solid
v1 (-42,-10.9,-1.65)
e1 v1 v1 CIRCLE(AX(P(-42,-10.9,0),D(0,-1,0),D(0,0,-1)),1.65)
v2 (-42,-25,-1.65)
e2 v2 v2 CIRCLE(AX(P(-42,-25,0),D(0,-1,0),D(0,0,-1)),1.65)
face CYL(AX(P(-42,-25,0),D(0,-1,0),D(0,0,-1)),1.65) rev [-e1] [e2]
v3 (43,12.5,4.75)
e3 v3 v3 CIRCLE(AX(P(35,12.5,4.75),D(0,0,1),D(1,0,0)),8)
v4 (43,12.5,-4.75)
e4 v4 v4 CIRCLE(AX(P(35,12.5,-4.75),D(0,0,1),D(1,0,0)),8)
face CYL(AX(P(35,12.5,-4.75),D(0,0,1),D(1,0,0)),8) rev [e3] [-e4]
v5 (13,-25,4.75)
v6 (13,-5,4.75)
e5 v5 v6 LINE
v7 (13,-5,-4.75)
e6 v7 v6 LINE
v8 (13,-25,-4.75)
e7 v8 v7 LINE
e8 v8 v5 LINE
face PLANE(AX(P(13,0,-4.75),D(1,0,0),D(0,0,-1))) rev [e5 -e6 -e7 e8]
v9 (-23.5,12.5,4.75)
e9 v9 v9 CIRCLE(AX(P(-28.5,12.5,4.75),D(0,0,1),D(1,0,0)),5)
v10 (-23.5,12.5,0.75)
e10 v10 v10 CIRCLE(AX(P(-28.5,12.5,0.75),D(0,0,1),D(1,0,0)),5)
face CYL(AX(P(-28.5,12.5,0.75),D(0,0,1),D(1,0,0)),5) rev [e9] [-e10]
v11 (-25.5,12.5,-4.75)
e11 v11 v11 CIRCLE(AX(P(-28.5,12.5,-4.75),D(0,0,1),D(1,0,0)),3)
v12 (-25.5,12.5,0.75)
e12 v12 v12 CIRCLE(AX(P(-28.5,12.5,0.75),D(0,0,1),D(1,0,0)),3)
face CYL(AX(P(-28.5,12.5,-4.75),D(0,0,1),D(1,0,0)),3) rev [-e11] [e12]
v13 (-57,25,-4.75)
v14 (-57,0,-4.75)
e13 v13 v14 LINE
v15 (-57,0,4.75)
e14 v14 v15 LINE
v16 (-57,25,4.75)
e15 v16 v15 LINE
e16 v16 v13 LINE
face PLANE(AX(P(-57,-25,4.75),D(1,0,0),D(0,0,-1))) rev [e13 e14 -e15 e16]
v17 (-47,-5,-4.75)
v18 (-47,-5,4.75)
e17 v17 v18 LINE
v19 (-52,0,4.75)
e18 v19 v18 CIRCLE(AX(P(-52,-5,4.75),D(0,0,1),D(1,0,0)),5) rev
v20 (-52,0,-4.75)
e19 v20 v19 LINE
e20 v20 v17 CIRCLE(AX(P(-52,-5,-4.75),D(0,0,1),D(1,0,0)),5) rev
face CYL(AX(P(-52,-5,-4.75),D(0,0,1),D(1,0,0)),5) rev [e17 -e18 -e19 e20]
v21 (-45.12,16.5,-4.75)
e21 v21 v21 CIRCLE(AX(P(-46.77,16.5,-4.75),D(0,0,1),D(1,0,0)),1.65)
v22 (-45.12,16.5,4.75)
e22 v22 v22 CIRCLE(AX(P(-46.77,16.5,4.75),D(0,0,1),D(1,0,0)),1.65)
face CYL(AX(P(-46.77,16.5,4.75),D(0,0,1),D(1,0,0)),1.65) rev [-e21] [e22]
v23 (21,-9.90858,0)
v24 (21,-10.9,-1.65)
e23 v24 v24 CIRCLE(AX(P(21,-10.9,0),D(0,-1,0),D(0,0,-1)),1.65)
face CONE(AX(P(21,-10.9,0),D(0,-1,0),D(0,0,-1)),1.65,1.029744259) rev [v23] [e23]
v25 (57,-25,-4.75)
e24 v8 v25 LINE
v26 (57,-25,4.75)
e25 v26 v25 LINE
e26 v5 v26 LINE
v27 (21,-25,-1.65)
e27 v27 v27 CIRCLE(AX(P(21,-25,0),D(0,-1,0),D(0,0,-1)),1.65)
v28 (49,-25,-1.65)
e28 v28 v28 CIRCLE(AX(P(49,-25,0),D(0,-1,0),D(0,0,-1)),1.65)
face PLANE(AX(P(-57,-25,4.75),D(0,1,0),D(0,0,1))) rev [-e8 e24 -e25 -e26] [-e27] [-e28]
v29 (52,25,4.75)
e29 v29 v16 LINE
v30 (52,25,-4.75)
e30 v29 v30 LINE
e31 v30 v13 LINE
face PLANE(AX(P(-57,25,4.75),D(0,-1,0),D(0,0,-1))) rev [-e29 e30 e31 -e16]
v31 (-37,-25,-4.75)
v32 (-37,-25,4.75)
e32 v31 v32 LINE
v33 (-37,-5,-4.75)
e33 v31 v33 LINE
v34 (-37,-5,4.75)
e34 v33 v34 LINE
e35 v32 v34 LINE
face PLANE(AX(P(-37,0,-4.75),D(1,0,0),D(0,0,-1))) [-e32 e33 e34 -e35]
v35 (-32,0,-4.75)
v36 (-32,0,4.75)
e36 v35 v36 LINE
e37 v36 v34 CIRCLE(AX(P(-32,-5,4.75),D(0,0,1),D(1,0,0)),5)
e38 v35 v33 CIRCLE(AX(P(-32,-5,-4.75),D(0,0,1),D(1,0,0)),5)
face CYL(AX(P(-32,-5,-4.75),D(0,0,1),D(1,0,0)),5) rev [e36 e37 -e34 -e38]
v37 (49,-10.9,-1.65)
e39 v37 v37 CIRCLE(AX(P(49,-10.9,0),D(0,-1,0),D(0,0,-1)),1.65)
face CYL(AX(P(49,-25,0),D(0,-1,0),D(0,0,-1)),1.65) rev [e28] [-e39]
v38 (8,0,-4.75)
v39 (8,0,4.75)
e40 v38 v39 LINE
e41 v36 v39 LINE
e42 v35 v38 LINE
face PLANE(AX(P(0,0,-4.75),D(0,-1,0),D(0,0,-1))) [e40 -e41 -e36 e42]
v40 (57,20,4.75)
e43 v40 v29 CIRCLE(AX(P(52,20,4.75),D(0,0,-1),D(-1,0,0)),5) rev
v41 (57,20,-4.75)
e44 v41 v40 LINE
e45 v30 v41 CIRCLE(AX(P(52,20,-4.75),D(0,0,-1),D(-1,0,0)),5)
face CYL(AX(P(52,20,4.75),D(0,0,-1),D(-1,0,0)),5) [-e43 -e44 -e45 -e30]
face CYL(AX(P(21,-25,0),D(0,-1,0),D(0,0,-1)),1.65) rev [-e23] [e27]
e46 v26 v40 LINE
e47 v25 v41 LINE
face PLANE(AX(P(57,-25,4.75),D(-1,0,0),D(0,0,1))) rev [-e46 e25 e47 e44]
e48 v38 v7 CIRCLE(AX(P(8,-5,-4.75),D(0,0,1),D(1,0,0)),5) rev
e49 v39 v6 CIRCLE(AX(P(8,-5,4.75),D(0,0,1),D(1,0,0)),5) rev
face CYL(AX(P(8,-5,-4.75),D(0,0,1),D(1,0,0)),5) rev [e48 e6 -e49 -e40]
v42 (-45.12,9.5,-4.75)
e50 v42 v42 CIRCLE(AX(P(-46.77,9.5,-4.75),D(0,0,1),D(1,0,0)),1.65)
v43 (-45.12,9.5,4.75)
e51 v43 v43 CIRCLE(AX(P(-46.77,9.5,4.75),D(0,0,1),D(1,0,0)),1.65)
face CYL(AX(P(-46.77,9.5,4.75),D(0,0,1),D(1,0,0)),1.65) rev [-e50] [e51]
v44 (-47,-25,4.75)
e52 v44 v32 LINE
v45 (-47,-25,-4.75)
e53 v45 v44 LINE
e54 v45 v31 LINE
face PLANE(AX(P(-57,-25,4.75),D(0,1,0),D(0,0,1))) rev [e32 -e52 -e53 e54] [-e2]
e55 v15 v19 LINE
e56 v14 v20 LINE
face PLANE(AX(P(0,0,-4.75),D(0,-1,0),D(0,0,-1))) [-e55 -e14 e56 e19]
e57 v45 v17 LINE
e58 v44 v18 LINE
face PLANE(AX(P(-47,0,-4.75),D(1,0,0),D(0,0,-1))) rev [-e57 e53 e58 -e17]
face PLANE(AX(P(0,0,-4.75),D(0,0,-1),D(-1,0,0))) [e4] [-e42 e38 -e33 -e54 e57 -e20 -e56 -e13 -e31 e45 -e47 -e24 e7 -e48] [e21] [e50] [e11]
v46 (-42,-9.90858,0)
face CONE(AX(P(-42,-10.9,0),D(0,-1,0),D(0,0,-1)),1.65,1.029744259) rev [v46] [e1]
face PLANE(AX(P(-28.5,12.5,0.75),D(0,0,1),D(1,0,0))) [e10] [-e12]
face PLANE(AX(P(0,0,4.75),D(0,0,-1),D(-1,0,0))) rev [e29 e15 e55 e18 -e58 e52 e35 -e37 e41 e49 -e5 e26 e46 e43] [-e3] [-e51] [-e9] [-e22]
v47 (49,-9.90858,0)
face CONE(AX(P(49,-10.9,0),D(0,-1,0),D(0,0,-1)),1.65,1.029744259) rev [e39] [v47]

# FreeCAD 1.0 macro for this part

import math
import FreeCAD as App
import Part
import Sketcher
from FreeCAD import Vector


def edges_at(feature, points):
    """Names of the edges that pass closest to the given points."""
    edges = feature.Shape.Edges
    near = lambda p: min(range(len(edges)), key=lambda i: edges[i].distToShape(Part.Vertex(*p))[0])
    return sorted({f"Edge{near(p) + 1}" for p in points})


def add_polygon(sketch, points):
    """Adds a closed chain of lines whose ends are joined by coincident constraints."""
    first, n = sketch.GeometryCount, len(points)
    for a, b in zip(points, points[1:] + points[:1]):
        sketch.addGeometry(Part.LineSegment(App.Vector(*a, 0), App.Vector(*b, 0)), False)
    for i in range(n):
        sketch.addConstraint(Sketcher.Constraint("Coincident", first + i, 2, first + (i + 1) % n, 1))

doc = App.newDocument("Part")
params = doc.addObject("Spreadsheet::Sheet", "Params")
for row, (alias, value) in enumerate([
    ("sketch1_width", "114 mm"),
    ("sketch1_height", "50 mm"),
    ("pad1_length", "9.5 mm"),
    ("sketch2_diameter", "16 mm"),
    ("sketch2_radius", "5 mm"),
    ("sketch2_width", "50 mm"),
    ("sketch2_width2", "10 mm"),
    ("sketch2_height", "20 mm"),
    ("fillet_radius", "5 mm"),
    ("sketch3_diameter", "10 mm"),
    ("pocket2_length", "4 mm"),
    ("sketch4_diameter", "6 mm"),
    ("sketch5_diameter", "3.3 mm"),
    ("hole_diameter", "3.3 mm"),
    ("sketch6_diameter", "3.3 mm"),
    ("hole2_diameter", "3.3 mm"),
    ("hole2_depth", "14.1 mm"),
], start=1):
    params.set(f"A{row}", alias)
    params.set(f"B{row}", "=" + value)
    params.setAlias(f"B{row}", alias)

body = doc.addObject("PartDesign::Body", "Body")

sketch1 = body.newObject("Sketcher::SketchObject", "Sketch")
sketch1.AttachmentSupport = (doc.getObject("XY_Plane"), [""])
sketch1.MapMode = "FlatFace"
add_polygon(sketch1, [(-57, 25), (-57, -25), (57, -25), (57, 25)])
sketch1.addConstraint([
    Sketcher.Constraint("Vertical", 0),
    Sketcher.Constraint("Horizontal", 1),
    Sketcher.Constraint("Vertical", 2),
    Sketcher.Constraint("Horizontal", 3),
    Sketcher.Constraint("Symmetric", 0, 2, 2, 2, -1, 1),
    Sketcher.Constraint("DistanceX", 1, 1, 1, 2, 114.0),
    Sketcher.Constraint("DistanceY", 0, 2, 0, 1, 50.0),
])
sketch1.setExpression("Constraints[9]", "Params.sketch1_width")
sketch1.setExpression("Constraints[10]", "Params.sketch1_height")
pad1 = body.newObject("PartDesign::Pad", "Pad")
pad1.Profile = sketch1
pad1.setExpression("Length", "Params.pad1_length")
pad1.Midplane = True

sketch2 = body.newObject("Sketcher::SketchObject", "Sketch001")
sketch2.AttachmentSupport = (doc.getObject("XY_Plane"), [""])
sketch2.MapMode = "FlatFace"
sketch2.AttachmentOffset = App.Placement(Vector(0, 0, 4.75), App.Rotation())
sketch2.addGeometry([
    Part.LineSegment(Vector(-37, -5, 0), Vector(-37, -25, 0)),
    Part.LineSegment(Vector(-37, -25, 0), Vector(13, -25, 0)),
    Part.LineSegment(Vector(13, -25, 0), Vector(13, -5, 0)),
    Part.ArcOfCircle(Part.Circle(Vector(8, -5, 0), Vector(0, 0, 1), 5), math.radians(0), math.radians(90)),
    Part.LineSegment(Vector(8, 0, 0), Vector(-32, 0, 0)),
    Part.ArcOfCircle(Part.Circle(Vector(-32, -5, 0), Vector(0, 0, 1), 5), math.radians(90), math.radians(180)),
    Part.LineSegment(Vector(-57, -25, 0), Vector(-47, -25, 0)),
    Part.LineSegment(Vector(-47, -25, 0), Vector(-47, -5, 0)),
    Part.ArcOfCircle(Part.Circle(Vector(-52, -5, 0), Vector(0, 0, 1), 5), math.radians(0), math.radians(90)),
    Part.LineSegment(Vector(-52, 0, 0), Vector(-57, 0, 0)),
    Part.LineSegment(Vector(-57, 0, 0), Vector(-57, -25, 0)),
    Part.Circle(Vector(35, 12, 0), Vector(0, 0, 1), 8),
], False)
sketch2.addConstraint([
    Sketcher.Constraint("Coincident", 0, 2, 1, 1),
    Sketcher.Constraint("Coincident", 1, 2, 2, 1),
    Sketcher.Constraint("Tangent", 2, 2, 3, 1),
    Sketcher.Constraint("Tangent", 3, 2, 4, 1),
    Sketcher.Constraint("Tangent", 4, 2, 5, 1),
    Sketcher.Constraint("Tangent", 5, 2, 0, 1),
    Sketcher.Constraint("Coincident", 6, 2, 7, 1),
    Sketcher.Constraint("Tangent", 7, 2, 8, 1),
    Sketcher.Constraint("Tangent", 8, 2, 9, 1),
    Sketcher.Constraint("Coincident", 9, 2, 10, 1),
    Sketcher.Constraint("Coincident", 10, 2, 6, 1),
    Sketcher.Constraint("Vertical", 0),
    Sketcher.Constraint("Horizontal", 1),
    Sketcher.Constraint("Vertical", 2),
    Sketcher.Constraint("Horizontal", 4),
    Sketcher.Constraint("Horizontal", 6),
    Sketcher.Constraint("Vertical", 7),
    Sketcher.Constraint("Horizontal", 9),
    Sketcher.Constraint("Vertical", 10),
    Sketcher.Constraint("Equal", 3, 5),
    Sketcher.Constraint("Equal", 5, 8),
    Sketcher.Constraint("PointOnObject", 3, 2, -1),
    Sketcher.Constraint("PointOnObject", 8, 2, -1),
    Sketcher.Constraint("Horizontal", 1, 2, 6, 2),
    Sketcher.Constraint("Diameter", 11, 16.0),
    Sketcher.Constraint("Radius", 3, 5.0),
    Sketcher.Constraint("DistanceX", 1, 1, 1, 2, 50.0),
    Sketcher.Constraint("DistanceX", 6, 1, 6, 2, 10.0),
    Sketcher.Constraint("DistanceY", 0, 2, 0, 1, 20.0),
    Sketcher.Constraint("DistanceX", -1, 1, 3, 3, 8.0),
    Sketcher.Constraint("DistanceX", 8, 3, -1, 1, 52.0),
    Sketcher.Constraint("DistanceX", -1, 1, 11, 3, 35.0),
    Sketcher.Constraint("DistanceY", -1, 1, 11, 3, 12.5),
])
sketch2.setExpression("Constraints[24]", "Params.sketch2_diameter")
sketch2.setExpression("Constraints[25]", "Params.sketch2_radius")
sketch2.setExpression("Constraints[26]", "Params.sketch2_width")
sketch2.setExpression("Constraints[27]", "Params.sketch2_width2")
sketch2.setExpression("Constraints[28]", "Params.sketch2_height")
pocket1 = body.newObject("PartDesign::Pocket", "Pocket")
pocket1.Profile = sketch2
pocket1.Type = "ThroughAll"
doc.recompute()

fillet = body.newObject("PartDesign::Fillet", "Fillet")
fillet.Base = (pocket1, edges_at(pocket1, [(57, 25, 0)]))
fillet.setExpression("Radius", "Params.fillet_radius")

sketch3 = body.newObject("Sketcher::SketchObject", "Sketch002")
sketch3.AttachmentSupport = (doc.getObject("XY_Plane"), [""])
sketch3.MapMode = "FlatFace"
sketch3.AttachmentOffset = App.Placement(Vector(0, 0, 4.75), App.Rotation())
sketch3.addGeometry(Part.Circle(Vector(-28, 12, 0), Vector(0, 0, 1), 5), False)
sketch3.addConstraint([
    Sketcher.Constraint("Diameter", 0, 10.0),
    Sketcher.Constraint("DistanceX", 0, 3, -1, 1, 28.5),
    Sketcher.Constraint("DistanceY", -1, 1, 0, 3, 12.5),
])
sketch3.setExpression("Constraints[0]", "Params.sketch3_diameter")
pocket2 = body.newObject("PartDesign::Pocket", "Pocket001")
pocket2.Profile = sketch3
pocket2.setExpression("Length", "Params.pocket2_length")

sketch4 = body.newObject("Sketcher::SketchObject", "Sketch003")
sketch4.AttachmentSupport = (doc.getObject("XY_Plane"), [""])
sketch4.MapMode = "FlatFace"
sketch4.AttachmentOffset = App.Placement(Vector(0, 0, 0.75), App.Rotation())
sketch4.addGeometry(Part.Circle(Vector(-28.5, 12.5, 0), Vector(0, 0, 1), 3), False)
sketch4.addConstraint([
    Sketcher.Constraint("Diameter", 0, 6.0),
    Sketcher.Constraint("DistanceX", 0, 3, -1, 1, 28.5),
    Sketcher.Constraint("DistanceY", -1, 1, 0, 3, 12.5),
])
sketch4.setExpression("Constraints[0]", "Params.sketch4_diameter")
pocket3 = body.newObject("PartDesign::Pocket", "Pocket002")
pocket3.Profile = sketch4
pocket3.Type = "ThroughAll"

sketch5 = body.newObject("Sketcher::SketchObject", "Sketch004")
sketch5.AttachmentSupport = (doc.getObject("XY_Plane"), [""])
sketch5.MapMode = "FlatFace"
sketch5.AttachmentOffset = App.Placement(Vector(0, 0, 4.75), App.Rotation())
sketch5.addGeometry([
    Part.Circle(Vector(-46.8, 9.5, 0), Vector(0, 0, 1), 1.6),
    Part.Circle(Vector(-46.8, 16.5, 0), Vector(0, 0, 1), 1.6),
], False)
sketch5.addConstraint([
    Sketcher.Constraint("Equal", 0, 1),
    Sketcher.Constraint("Vertical", 0, 3, 1, 3),
    Sketcher.Constraint("Diameter", 0, 3.3),
    Sketcher.Constraint("DistanceY", 0, 3, 1, 3, 7.0),
    Sketcher.Constraint("DistanceY", -1, 1, 0, 3, 9.5),
    Sketcher.Constraint("DistanceX", 0, 3, -1, 1, 46.77),
])
sketch5.setExpression("Constraints[2]", "Params.sketch5_diameter")
doc.recompute()
hole = body.newObject("PartDesign::Hole", "Hole")
hole.Profile = sketch5
hole.ThreadType = "None"
hole.setExpression("Diameter", "Params.hole_diameter")
hole.DepthType = "ThroughAll"

sketch6 = body.newObject("Sketcher::SketchObject", "Sketch005")
sketch6.AttachmentSupport = (doc.getObject("XZ_Plane"), [""])
sketch6.MapMode = "FlatFace"
sketch6.AttachmentOffset = App.Placement(Vector(0, 0, 25), App.Rotation())
sketch6.addGeometry([
    Part.Circle(Vector(-42, 0, 0), Vector(0, 0, 1), 1.6),
    Part.Circle(Vector(21, 0, 0), Vector(0, 0, 1), 1.6),
    Part.Circle(Vector(49, 0, 0), Vector(0, 0, 1), 1.6),
], False)
sketch6.addConstraint([
    Sketcher.Constraint("Equal", 0, 1),
    Sketcher.Constraint("Equal", 1, 2),
    Sketcher.Constraint("PointOnObject", 0, 3, -1),
    Sketcher.Constraint("PointOnObject", 1, 3, -1),
    Sketcher.Constraint("PointOnObject", 2, 3, -1),
    Sketcher.Constraint("Diameter", 0, 3.3),
    Sketcher.Constraint("DistanceX", 0, 3, -1, 1, 42.0),
    Sketcher.Constraint("DistanceX", -1, 1, 1, 3, 21.0),
    Sketcher.Constraint("DistanceX", -1, 1, 2, 3, 49.0),
])
sketch6.setExpression("Constraints[5]", "Params.sketch6_diameter")
doc.recompute()
hole2 = body.newObject("PartDesign::Hole", "Hole001")
hole2.Profile = sketch6
hole2.ThreadType = "None"
hole2.setExpression("Diameter", "Params.hole2_diameter")
hole2.DepthType = "Dimension"
hole2.setExpression("Depth", "Params.hole2_depth")
hole2.DrillPoint = "Angled"
hole2.DrillPointAngle = 118

doc.recompute()
